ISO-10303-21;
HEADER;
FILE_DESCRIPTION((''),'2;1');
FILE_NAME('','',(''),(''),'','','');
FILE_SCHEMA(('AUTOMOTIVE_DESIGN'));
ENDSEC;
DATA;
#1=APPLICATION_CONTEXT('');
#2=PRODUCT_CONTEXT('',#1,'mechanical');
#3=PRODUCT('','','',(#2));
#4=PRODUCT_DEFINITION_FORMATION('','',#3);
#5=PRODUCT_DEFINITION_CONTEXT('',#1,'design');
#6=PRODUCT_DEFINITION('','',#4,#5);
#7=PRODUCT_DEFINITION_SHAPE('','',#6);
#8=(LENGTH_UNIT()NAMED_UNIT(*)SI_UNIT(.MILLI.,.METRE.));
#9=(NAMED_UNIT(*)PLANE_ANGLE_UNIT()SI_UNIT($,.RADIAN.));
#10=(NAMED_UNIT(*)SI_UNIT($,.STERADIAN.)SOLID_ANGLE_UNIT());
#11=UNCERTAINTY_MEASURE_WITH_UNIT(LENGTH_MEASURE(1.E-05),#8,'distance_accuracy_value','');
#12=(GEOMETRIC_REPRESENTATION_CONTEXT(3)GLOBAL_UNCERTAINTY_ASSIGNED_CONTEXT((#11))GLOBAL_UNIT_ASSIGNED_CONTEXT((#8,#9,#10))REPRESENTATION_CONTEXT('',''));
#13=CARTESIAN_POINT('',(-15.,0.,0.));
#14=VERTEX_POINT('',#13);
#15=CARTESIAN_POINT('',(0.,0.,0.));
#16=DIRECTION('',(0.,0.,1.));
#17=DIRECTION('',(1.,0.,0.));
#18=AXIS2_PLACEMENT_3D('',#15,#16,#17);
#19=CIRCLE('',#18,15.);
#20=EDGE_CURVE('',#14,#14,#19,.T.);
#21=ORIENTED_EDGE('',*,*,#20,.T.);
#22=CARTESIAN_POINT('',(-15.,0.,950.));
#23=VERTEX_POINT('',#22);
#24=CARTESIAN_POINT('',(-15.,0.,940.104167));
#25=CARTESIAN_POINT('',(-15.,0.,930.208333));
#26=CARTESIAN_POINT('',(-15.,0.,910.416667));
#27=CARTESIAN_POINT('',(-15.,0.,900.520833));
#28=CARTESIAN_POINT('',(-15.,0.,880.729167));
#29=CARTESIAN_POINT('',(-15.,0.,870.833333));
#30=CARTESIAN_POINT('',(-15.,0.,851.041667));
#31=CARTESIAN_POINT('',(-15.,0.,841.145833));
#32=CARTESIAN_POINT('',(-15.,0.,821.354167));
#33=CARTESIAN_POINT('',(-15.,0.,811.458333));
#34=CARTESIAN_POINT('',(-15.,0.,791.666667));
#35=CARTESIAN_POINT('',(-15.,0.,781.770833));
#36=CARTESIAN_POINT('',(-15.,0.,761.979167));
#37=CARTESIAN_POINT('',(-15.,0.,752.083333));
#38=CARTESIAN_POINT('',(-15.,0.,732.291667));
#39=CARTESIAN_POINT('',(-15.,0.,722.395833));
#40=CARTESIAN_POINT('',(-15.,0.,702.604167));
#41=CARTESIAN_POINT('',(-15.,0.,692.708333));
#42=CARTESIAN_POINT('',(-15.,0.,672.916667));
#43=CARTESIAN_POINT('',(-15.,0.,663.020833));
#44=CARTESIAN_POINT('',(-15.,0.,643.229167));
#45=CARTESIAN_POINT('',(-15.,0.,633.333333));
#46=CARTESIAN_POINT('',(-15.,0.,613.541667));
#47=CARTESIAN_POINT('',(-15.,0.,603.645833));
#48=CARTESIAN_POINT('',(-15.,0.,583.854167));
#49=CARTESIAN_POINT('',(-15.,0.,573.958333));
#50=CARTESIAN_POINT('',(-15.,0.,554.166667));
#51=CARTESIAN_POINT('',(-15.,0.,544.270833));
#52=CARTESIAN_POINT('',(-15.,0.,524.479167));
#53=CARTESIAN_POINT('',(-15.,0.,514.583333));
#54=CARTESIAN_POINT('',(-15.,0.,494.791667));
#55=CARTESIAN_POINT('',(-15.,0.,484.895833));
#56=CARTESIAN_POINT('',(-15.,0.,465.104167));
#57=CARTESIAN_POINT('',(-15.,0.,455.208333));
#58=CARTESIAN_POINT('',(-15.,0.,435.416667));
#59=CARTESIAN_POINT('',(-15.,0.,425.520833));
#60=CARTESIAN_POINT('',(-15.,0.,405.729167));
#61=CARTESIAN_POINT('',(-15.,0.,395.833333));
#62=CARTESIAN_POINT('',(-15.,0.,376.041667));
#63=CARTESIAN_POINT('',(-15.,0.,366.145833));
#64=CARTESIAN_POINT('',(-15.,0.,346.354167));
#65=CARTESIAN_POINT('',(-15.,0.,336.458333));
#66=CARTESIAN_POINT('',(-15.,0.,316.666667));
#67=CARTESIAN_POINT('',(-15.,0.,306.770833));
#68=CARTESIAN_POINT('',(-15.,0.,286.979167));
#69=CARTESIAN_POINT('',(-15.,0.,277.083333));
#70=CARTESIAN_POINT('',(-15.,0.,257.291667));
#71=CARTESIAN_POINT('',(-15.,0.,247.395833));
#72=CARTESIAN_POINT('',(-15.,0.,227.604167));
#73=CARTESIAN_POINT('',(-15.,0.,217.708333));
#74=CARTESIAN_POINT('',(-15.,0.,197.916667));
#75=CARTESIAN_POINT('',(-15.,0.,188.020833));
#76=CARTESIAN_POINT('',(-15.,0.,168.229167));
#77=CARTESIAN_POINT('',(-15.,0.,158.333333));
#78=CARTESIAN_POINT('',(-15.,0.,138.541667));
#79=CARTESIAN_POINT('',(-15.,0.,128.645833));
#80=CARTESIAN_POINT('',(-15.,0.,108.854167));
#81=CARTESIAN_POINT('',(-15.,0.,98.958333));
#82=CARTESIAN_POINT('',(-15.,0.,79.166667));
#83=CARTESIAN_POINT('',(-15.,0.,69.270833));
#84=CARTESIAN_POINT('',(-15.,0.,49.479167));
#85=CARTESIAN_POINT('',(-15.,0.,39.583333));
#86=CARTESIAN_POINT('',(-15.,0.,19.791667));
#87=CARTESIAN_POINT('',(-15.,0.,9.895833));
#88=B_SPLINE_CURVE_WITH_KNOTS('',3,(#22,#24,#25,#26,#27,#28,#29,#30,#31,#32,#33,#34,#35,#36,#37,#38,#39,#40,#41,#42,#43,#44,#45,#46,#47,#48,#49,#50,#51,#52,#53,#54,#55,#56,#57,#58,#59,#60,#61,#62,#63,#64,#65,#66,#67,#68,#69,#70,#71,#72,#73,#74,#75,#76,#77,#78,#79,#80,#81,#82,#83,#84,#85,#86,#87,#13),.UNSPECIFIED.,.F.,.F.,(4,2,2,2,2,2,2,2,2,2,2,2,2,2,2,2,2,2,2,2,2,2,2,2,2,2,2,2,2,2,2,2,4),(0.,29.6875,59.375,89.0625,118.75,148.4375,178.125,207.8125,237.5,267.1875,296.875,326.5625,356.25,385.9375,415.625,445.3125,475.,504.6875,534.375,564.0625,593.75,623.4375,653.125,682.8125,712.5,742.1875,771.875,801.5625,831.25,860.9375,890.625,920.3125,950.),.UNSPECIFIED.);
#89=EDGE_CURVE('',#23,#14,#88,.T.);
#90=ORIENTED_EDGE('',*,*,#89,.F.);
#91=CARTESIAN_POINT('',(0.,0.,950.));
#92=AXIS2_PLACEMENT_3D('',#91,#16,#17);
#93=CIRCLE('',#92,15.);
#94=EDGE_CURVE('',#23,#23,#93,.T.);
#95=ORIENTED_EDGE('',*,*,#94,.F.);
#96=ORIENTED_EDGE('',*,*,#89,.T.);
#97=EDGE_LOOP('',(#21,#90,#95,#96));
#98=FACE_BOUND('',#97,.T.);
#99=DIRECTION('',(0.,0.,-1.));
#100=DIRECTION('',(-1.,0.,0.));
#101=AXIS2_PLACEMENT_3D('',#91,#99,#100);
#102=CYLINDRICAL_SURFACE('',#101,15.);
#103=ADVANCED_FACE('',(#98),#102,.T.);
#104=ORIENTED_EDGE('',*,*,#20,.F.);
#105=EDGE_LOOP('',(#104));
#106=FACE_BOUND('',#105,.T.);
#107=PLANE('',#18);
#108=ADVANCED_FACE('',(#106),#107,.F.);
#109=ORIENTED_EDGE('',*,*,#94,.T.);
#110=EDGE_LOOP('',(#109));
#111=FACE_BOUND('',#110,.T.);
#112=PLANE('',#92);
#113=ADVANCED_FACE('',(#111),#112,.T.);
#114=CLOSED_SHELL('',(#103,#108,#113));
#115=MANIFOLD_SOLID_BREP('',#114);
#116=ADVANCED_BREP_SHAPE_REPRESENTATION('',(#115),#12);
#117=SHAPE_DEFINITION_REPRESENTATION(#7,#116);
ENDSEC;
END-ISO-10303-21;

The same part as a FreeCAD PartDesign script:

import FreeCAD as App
import Part
import Sketcher

V = App.Vector

doc = App.newDocument("Part")
body = doc.addObject("PartDesign::Body", "Body")

sketch1 = doc.addObject("Sketcher::SketchObject", "Sketch")
body.addObject(sketch1)
sketch1.AttachmentSupport = (doc.XY_Plane, [""])
sketch1.MapMode = "FlatFace"
sketch1.addGeometry(Part.Circle(V(0, 0, 0), V(0, 0, 1), 15), False)
sketch1.addConstraint(Sketcher.Constraint("Coincident", 0, 3, -1, 1))
sketch1.addConstraint(Sketcher.Constraint("Diameter", 0, 30.0))
pad1 = doc.addObject("PartDesign::Pad", "Pad")
body.addObject(pad1)
pad1.Profile = sketch1
pad1.Length = 950

doc.recompute()
